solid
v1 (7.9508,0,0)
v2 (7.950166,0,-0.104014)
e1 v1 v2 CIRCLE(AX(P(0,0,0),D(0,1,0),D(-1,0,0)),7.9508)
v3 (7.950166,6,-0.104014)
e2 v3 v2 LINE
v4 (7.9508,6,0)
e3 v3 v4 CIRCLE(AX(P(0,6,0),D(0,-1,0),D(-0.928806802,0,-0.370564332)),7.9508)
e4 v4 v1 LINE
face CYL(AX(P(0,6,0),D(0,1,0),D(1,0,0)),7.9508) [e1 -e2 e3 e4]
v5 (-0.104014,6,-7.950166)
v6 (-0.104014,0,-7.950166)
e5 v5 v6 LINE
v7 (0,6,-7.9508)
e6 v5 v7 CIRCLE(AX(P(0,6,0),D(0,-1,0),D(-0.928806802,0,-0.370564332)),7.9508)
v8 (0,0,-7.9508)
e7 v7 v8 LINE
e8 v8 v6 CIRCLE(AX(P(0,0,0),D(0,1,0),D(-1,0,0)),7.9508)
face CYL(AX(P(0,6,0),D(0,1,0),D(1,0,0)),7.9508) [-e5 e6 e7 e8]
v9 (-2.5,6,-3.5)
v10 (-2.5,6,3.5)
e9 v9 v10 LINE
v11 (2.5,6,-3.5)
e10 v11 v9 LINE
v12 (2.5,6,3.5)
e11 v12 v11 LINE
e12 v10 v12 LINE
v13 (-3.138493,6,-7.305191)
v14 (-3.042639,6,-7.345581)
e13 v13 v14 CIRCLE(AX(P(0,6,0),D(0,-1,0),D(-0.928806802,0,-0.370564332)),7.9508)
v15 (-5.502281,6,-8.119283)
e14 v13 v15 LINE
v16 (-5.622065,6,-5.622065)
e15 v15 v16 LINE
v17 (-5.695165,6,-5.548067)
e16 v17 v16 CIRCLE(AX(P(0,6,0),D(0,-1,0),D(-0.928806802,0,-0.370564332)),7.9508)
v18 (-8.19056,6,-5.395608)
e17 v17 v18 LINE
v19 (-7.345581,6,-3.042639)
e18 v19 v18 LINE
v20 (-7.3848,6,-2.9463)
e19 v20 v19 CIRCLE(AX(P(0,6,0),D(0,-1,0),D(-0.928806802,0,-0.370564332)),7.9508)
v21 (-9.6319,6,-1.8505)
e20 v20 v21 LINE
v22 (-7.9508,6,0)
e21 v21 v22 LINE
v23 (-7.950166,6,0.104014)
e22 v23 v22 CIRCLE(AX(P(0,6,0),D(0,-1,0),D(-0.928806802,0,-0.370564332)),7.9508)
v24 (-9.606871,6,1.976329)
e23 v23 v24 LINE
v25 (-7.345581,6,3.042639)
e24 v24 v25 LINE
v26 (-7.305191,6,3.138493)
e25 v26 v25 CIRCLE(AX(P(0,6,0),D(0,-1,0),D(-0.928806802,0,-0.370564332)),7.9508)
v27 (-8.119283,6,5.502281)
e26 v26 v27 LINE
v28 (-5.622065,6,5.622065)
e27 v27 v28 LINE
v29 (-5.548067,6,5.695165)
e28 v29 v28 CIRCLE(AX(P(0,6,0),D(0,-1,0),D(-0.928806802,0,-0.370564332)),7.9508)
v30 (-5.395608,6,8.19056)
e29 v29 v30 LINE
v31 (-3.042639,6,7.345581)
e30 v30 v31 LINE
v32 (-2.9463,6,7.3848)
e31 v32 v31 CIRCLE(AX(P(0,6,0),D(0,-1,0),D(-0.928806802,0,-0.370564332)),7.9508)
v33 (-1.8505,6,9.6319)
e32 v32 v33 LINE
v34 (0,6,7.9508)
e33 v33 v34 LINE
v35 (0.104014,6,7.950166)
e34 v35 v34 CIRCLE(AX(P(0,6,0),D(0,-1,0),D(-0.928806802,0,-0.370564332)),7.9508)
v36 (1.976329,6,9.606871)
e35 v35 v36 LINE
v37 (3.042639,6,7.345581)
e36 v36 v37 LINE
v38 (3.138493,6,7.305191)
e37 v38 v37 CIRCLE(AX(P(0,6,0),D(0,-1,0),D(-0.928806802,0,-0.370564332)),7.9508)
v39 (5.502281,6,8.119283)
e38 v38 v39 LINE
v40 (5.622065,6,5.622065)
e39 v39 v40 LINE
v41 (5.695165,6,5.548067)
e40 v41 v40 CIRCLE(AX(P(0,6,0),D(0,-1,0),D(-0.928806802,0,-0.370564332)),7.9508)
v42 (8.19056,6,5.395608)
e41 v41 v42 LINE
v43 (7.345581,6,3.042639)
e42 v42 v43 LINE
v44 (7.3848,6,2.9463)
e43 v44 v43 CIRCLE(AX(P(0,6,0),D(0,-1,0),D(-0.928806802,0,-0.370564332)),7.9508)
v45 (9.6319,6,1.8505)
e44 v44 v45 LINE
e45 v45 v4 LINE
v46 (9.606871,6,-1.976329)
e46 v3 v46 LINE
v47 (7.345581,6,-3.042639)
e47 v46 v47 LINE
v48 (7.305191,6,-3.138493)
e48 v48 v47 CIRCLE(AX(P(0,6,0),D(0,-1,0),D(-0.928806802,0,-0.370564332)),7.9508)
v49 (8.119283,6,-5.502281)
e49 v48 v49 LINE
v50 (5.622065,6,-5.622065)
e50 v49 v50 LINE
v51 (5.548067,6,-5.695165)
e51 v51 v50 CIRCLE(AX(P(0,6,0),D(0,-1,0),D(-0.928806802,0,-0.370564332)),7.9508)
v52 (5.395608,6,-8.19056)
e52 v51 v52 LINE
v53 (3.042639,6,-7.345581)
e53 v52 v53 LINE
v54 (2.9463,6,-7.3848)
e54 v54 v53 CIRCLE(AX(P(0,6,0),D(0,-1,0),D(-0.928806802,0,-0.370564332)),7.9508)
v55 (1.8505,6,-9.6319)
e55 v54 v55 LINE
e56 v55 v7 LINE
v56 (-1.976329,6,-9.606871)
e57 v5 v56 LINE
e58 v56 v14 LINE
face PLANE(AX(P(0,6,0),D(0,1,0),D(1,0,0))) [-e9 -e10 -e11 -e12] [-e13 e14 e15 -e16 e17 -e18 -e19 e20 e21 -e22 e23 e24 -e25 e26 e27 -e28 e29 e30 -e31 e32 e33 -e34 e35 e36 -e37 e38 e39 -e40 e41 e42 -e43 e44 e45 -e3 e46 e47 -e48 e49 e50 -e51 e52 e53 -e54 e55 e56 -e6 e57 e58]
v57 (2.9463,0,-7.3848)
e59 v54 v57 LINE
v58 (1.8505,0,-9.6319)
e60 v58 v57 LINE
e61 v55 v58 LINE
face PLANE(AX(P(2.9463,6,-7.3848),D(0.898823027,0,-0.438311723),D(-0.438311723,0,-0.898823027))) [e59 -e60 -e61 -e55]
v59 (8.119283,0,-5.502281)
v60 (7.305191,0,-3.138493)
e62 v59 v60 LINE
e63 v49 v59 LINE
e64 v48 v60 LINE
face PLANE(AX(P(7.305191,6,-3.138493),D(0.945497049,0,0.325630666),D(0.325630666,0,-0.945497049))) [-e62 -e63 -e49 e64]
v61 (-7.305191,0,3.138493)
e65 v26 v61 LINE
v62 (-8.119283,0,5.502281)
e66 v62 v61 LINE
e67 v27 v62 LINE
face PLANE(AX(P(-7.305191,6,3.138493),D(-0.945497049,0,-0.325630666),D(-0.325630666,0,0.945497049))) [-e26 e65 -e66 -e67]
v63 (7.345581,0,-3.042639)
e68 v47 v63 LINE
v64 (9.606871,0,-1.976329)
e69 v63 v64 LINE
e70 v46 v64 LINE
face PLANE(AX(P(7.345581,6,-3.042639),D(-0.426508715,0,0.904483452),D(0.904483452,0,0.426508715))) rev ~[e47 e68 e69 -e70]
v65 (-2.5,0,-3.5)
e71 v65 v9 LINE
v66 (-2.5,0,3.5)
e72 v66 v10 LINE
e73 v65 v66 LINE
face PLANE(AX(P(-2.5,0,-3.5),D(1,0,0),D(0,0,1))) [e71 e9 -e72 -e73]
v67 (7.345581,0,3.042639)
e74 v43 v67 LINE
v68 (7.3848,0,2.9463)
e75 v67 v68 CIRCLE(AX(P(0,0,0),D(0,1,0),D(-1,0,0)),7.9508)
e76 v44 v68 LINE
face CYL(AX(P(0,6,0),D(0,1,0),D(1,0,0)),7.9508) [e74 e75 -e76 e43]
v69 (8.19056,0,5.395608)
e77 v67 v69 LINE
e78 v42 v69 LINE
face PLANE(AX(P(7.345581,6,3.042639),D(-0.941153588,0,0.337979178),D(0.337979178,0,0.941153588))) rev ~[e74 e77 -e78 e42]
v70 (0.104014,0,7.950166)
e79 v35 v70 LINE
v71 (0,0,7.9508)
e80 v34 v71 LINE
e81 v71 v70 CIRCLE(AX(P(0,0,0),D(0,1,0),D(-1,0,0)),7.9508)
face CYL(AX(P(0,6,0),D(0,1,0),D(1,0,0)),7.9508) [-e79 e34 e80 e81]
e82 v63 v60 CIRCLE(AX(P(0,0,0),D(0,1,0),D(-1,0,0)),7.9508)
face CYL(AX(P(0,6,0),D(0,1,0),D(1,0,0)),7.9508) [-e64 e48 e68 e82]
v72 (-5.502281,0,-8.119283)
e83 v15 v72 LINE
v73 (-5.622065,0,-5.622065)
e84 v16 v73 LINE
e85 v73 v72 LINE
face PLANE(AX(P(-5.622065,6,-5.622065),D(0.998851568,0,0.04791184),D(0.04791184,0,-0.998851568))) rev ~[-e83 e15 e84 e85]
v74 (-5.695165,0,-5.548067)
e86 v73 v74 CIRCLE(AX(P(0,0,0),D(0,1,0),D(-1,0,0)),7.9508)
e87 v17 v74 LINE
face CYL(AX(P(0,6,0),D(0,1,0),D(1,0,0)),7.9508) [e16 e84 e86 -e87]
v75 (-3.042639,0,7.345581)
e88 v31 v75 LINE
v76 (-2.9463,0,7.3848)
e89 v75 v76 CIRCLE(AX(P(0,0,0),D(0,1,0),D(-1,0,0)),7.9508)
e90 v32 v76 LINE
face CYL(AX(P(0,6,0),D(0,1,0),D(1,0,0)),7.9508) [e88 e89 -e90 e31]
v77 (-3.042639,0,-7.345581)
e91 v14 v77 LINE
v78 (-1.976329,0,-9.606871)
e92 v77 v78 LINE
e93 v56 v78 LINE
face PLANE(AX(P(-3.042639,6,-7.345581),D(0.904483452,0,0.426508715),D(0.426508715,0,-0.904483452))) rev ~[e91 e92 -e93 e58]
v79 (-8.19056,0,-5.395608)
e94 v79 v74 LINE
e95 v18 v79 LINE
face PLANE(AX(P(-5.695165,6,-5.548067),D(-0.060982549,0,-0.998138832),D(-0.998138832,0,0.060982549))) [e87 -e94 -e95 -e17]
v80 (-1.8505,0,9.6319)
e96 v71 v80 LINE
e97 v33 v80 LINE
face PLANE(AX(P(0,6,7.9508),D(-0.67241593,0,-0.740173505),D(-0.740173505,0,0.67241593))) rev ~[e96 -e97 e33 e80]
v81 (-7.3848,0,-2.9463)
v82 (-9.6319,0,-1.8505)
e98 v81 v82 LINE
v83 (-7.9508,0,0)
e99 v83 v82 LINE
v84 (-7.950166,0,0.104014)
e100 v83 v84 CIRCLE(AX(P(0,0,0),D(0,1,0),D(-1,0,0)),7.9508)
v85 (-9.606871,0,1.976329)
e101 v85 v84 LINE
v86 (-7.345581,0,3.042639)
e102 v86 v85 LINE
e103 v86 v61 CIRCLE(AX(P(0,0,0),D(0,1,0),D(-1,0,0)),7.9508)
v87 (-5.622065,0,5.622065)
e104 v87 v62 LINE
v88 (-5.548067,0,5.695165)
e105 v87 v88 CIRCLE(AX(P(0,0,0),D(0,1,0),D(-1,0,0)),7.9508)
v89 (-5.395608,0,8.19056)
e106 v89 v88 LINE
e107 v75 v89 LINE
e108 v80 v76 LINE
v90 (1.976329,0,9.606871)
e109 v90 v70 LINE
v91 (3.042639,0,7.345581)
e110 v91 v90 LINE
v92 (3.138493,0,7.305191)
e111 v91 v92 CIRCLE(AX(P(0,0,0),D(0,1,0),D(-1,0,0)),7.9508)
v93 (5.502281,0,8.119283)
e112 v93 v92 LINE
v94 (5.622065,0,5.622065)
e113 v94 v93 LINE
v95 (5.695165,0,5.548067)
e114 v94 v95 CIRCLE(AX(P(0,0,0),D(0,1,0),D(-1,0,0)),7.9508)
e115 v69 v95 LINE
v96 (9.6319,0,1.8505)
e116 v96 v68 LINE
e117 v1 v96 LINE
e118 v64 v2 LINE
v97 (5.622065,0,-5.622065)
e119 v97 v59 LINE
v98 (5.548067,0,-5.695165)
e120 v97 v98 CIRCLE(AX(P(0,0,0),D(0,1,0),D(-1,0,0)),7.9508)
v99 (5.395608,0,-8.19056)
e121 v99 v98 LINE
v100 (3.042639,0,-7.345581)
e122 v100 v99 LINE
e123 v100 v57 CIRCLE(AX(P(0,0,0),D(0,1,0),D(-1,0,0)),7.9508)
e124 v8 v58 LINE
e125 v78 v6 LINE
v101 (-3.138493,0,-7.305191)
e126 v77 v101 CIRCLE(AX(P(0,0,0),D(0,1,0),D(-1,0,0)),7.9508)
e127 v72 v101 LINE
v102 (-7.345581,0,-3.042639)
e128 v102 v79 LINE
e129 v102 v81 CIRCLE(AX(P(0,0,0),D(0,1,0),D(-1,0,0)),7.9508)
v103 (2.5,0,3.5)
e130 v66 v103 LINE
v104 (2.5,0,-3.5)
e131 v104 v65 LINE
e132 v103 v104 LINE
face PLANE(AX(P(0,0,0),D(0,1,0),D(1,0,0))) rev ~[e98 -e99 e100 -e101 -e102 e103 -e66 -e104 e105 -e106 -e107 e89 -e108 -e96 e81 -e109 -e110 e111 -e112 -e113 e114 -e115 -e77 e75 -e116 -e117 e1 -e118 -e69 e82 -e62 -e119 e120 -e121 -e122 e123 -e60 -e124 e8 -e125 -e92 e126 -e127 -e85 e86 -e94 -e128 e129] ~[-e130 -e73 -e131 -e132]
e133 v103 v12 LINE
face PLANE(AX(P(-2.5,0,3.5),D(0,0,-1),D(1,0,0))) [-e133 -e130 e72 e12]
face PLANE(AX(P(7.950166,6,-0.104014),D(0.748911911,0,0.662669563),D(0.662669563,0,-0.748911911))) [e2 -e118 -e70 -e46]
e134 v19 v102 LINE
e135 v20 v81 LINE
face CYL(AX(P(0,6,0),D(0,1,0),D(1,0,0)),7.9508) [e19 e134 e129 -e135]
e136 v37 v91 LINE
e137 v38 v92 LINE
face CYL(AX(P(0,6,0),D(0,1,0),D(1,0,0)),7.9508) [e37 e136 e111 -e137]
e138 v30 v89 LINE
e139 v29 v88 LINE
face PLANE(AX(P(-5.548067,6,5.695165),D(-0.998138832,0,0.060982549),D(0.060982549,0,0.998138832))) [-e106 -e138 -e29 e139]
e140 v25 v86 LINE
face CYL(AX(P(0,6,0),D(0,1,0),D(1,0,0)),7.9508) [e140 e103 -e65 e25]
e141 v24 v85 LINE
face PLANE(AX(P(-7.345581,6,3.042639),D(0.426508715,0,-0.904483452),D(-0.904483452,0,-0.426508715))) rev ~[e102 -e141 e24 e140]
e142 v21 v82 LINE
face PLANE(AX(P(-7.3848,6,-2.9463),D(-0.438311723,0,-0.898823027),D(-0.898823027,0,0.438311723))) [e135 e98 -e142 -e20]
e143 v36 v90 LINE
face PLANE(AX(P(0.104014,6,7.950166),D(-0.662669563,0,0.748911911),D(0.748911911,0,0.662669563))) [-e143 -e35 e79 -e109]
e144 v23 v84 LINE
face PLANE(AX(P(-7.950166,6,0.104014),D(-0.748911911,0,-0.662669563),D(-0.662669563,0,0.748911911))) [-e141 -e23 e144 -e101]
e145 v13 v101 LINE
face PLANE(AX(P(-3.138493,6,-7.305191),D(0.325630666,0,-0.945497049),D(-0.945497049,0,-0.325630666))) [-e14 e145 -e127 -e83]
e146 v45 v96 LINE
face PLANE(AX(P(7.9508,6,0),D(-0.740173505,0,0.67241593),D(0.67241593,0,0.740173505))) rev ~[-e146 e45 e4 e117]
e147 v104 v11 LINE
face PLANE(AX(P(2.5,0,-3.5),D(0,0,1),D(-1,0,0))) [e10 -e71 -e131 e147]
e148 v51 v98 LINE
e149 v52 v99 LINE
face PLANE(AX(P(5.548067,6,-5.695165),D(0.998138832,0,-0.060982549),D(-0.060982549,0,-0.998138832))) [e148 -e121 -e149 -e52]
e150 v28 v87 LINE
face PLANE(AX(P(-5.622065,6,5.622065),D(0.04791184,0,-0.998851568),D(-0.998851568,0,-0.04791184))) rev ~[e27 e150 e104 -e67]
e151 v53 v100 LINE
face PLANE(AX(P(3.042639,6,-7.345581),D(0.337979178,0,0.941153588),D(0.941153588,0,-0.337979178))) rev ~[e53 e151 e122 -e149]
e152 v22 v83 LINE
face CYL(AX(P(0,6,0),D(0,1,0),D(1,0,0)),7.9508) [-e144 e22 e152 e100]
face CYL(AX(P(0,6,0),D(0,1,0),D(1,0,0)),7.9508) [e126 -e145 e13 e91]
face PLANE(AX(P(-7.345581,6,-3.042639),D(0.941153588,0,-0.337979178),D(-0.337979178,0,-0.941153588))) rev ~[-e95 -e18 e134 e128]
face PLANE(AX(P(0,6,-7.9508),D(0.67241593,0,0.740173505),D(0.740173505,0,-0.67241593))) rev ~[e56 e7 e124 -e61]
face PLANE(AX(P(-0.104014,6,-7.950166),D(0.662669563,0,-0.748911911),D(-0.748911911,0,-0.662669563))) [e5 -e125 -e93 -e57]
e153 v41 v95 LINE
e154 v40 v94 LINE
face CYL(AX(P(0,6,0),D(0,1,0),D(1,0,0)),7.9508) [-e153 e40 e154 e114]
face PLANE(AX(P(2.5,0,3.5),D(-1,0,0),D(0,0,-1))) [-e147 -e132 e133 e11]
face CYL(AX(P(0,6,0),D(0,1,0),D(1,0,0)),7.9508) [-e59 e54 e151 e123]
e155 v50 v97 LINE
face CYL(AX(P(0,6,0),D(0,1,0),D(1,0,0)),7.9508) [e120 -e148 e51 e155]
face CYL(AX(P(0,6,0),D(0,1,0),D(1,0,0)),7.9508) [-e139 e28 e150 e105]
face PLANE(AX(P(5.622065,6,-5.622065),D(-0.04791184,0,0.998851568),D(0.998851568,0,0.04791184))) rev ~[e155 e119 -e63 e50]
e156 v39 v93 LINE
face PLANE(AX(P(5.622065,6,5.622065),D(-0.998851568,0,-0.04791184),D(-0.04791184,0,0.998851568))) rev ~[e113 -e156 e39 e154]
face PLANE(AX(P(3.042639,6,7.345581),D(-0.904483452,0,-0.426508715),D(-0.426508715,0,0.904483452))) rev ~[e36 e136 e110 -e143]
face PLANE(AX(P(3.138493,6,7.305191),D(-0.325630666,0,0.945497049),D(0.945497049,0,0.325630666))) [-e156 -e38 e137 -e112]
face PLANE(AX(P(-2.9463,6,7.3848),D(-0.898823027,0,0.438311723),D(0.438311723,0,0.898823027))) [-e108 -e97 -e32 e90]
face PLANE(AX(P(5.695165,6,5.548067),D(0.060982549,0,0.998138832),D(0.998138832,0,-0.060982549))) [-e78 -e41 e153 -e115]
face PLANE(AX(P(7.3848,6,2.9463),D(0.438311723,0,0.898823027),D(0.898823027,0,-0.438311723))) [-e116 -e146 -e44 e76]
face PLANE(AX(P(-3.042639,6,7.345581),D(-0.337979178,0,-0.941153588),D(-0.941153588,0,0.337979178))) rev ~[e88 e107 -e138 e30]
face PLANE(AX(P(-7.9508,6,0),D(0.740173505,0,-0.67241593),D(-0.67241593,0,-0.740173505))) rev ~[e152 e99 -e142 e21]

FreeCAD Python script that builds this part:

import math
import FreeCAD as App
import Part
import Sketcher
from FreeCAD import Vector
Q = App.Units.Quantity


def add_polygon(sketch, points):
    """Adds a closed chain of lines whose ends are joined by coincident constraints."""
    first, n = sketch.GeometryCount, len(points)
    for a, b in zip(points, points[1:] + points[:1]):
        sketch.addGeometry(Part.LineSegment(App.Vector(*a, 0), App.Vector(*b, 0)), False)
    for i in range(n):
        sketch.addConstraint(Sketcher.Constraint("Coincident", first + i, 2, first + (i + 1) % n, 1))

doc = App.newDocument("Part")
body = doc.addObject("PartDesign::Body", "Body")

# Sketch on XZ plane
sketch1 = body.newObject("Sketcher::SketchObject", "Sketch")
sketch1.AttachmentSupport = (doc.getObject("XZ_Plane"), [""])
sketch1.MapMode = "FlatFace"
sketch1.addGeometry(Part.ArcOfCircle(Part.Circle(Vector(0, 0, 0), Vector(0, 0, 1), 6), math.radians(126), math.radians(335)), False)  # 0
sketch1.addGeometry(Part.ArcOfCircle(Part.Circle(Vector(0, 0, 0), Vector(0, 0, 1), 6), math.radians(-25), math.radians(126)), False)  # 1
add_polygon(sketch1, [(2, 4), (-2, 4), (-2, -4), (2, -4)])  # lines 2-5
sketch1.addConstraint(Sketcher.Constraint("Tangent", 0, 1, 1, 2))
sketch1.addConstraint(Sketcher.Constraint("Coincident", 1, 1, 0, 2))
sketch1.addConstraint(Sketcher.Constraint("Horizontal", 2))
sketch1.addConstraint(Sketcher.Constraint("Vertical", 3))
sketch1.addConstraint(Sketcher.Constraint("Horizontal", 4))
sketch1.addConstraint(Sketcher.Constraint("Vertical", 5))
sketch1.addConstraint(Sketcher.Constraint("Coincident", 0, 3, -1, 1))
sketch1.addConstraint(Sketcher.Constraint("Symmetric", 2, 2, 4, 2, -1, 1))
sketch1.addConstraint(Sketcher.Constraint("DistanceX", 2, 2, 2, 1, 5.0))
sketch1.addConstraint(Sketcher.Constraint("DistanceY", 3, 2, 3, 1, 7.0))
sketch1.addConstraint(Sketcher.Constraint("Radius", 0, 6.0))
sketch1.addConstraint(Sketcher.Constraint("DistanceX", 0, 1, 2, 2, 1.0))
sketch1.addConstraint(Sketcher.Constraint("DistanceY", 3, 2, 1, 1, 1.0))
pad1 = body.newObject("PartDesign::Pad", "Pad")
pad1.Profile = sketch1
pad1.Length = 6
pad1.Reversed = True

# Sketch on XZ plane
sketch2 = body.newObject("Sketcher::SketchObject", "Sketch001")
sketch2.AttachmentSupport = (doc.getObject("XZ_Plane"), [""])
sketch2.MapMode = "FlatFace"
sketch2.AttachmentOffset = App.Placement(Vector(0, 0, -6), App.Rotation())
sketch2.addGeometry(Part.LineSegment(Vector(-0.9, 5.93, 0), Vector(-0.42, 6.5, 0)), False)
sketch2.addGeometry(Part.ArcOfCircle(Part.Circle(Vector(0, 6.23, 0), Vector(0, 0, 1), 0.5), math.radians(33), math.radians(147)), False)
sketch2.addGeometry(Part.LineSegment(Vector(0.42, 6.5, 0), Vector(0.9, 5.93, 0)), False)
sketch2.addGeometry(Part.ArcOfCircle(Part.Circle(Vector(0, 0, 0), Vector(0, 0, 1), 6), math.radians(81.42), math.radians(98.58)), False)
sketch2.addConstraint(Sketcher.Constraint("Coincident", 0, 2, 1, 2))
sketch2.addConstraint(Sketcher.Constraint("Coincident", 1, 1, 2, 1))
sketch2.addConstraint(Sketcher.Constraint("Coincident", 2, 2, 3, 1))
sketch2.addConstraint(Sketcher.Constraint("Coincident", 3, 2, 0, 1))
sketch2.addConstraint(Sketcher.Constraint("Coincident", 3, 3, -1, 1))
sketch2.addConstraint(Sketcher.Constraint("Symmetric", 0, 2, 1, 1, -2))
sketch2.addConstraint(Sketcher.Constraint("Horizontal", 2, 2, 3, 2))
sketch2.addConstraint(Sketcher.Constraint("Radius", 1, 0.5))
sketch2.addConstraint(Sketcher.Constraint("Radius", 3, 6.0))
sketch2.addConstraint(Sketcher.Constraint("Angle", 0, Q("50.0007 deg")))
sketch2.addConstraint(Sketcher.Constraint("DistanceY", -1, 1, 0, 2, 6.5))
sketch2.addConstraint(Sketcher.Constraint("DistanceY", -1, 1, 1, 3, 6.228))
pad2 = body.newObject("PartDesign::Pad", "Pad001")
pad2.Profile = sketch2
pad2.Length = 2
doc.recompute()

polarpattern = body.newObject("PartDesign::PolarPattern", "PolarPattern")
polarpattern.Originals = [pad2]
polarpattern.Axis = (doc.getObject("Y_Axis"), [""])
polarpattern.Angle = 360
polarpattern.Occurrences = 21
body.Tip = polarpattern

# Sketch on XZ plane
sketch3 = body.newObject("Sketcher::SketchObject", "Sketch002")
sketch3.AttachmentSupport = (doc.getObject("XZ_Plane"), [""])
sketch3.MapMode = "FlatFace"
sketch3.AttachmentOffset = App.Placement(Vector(0, 0, -6), App.Rotation())
sketch3.addGeometry(Part.Circle(Vector(0, 0, 0), Vector(0, 0, 1), 8), False)
sketch3.addGeometry(Part.Circle(Vector(0, 0, 0), Vector(0, 0, 1), 4.6), False)
sketch3.addConstraint(Sketcher.Constraint("Coincident", 0, 3, -1, 1))
sketch3.addConstraint(Sketcher.Constraint("Coincident", 1, 3, -1, 1))
sketch3.addConstraint(Sketcher.Constraint("Diameter", 0, 15.9016))
sketch3.addConstraint(Sketcher.Constraint("Diameter", 1, 9.2118))
pad3 = body.newObject("PartDesign::Pad", "Pad002")
pad3.Profile = sketch3
pad3.Length = 6

# Sketch on XZ plane
sketch4 = body.newObject("Sketcher::SketchObject", "Sketch003")
sketch4.AttachmentSupport = (doc.getObject("XZ_Plane"), [""])
sketch4.MapMode = "FlatFace"
sketch4.AttachmentOffset = App.Placement(Vector(0, 0, -6), App.Rotation())
sketch4.addGeometry(Part.LineSegment(Vector(-9.6, -1.9, 0), Vector(-8, 0, 0)), False)
sketch4.addGeometry(Part.ArcOfCircle(Part.Circle(Vector(0, 0, 0), Vector(0, 0, 1), 8), math.radians(180), math.radians(202)), False)
sketch4.addGeometry(Part.LineSegment(Vector(-7.4, -2.9, 0), Vector(-9.6, -1.9, 0)), False)
sketch4.addConstraint(Sketcher.Constraint("Coincident", 0, 2, 1, 1))
sketch4.addConstraint(Sketcher.Constraint("Coincident", 1, 2, 2, 1))
sketch4.addConstraint(Sketcher.Constraint("Coincident", 2, 2, 0, 1))
sketch4.addConstraint(Sketcher.Constraint("Coincident", 1, 3, -1, 1))
sketch4.addConstraint(Sketcher.Constraint("PointOnObject", 0, 2, -1))
sketch4.addConstraint(Sketcher.Constraint("Equal", 0, 2))
sketch4.addConstraint(Sketcher.Constraint("Distance", 0, 2.5))
sketch4.addConstraint(Sketcher.Constraint("Radius", 1, 7.9508))
sketch4.addConstraint(Sketcher.Constraint("DistanceX", 2, 2, -1, 1, 9.632))
pad4 = body.newObject("PartDesign::Pad", "Pad003")
pad4.Profile = sketch4
pad4.Length = 6
doc.recompute()

polarpattern2 = body.newObject("PartDesign::PolarPattern", "PolarPattern001")
polarpattern2.Originals = [pad4]
polarpattern2.Axis = (doc.getObject("Y_Axis"), [""])
polarpattern2.Angle = 360
polarpattern2.Occurrences = 16
body.Tip = polarpattern2

doc.recompute()
